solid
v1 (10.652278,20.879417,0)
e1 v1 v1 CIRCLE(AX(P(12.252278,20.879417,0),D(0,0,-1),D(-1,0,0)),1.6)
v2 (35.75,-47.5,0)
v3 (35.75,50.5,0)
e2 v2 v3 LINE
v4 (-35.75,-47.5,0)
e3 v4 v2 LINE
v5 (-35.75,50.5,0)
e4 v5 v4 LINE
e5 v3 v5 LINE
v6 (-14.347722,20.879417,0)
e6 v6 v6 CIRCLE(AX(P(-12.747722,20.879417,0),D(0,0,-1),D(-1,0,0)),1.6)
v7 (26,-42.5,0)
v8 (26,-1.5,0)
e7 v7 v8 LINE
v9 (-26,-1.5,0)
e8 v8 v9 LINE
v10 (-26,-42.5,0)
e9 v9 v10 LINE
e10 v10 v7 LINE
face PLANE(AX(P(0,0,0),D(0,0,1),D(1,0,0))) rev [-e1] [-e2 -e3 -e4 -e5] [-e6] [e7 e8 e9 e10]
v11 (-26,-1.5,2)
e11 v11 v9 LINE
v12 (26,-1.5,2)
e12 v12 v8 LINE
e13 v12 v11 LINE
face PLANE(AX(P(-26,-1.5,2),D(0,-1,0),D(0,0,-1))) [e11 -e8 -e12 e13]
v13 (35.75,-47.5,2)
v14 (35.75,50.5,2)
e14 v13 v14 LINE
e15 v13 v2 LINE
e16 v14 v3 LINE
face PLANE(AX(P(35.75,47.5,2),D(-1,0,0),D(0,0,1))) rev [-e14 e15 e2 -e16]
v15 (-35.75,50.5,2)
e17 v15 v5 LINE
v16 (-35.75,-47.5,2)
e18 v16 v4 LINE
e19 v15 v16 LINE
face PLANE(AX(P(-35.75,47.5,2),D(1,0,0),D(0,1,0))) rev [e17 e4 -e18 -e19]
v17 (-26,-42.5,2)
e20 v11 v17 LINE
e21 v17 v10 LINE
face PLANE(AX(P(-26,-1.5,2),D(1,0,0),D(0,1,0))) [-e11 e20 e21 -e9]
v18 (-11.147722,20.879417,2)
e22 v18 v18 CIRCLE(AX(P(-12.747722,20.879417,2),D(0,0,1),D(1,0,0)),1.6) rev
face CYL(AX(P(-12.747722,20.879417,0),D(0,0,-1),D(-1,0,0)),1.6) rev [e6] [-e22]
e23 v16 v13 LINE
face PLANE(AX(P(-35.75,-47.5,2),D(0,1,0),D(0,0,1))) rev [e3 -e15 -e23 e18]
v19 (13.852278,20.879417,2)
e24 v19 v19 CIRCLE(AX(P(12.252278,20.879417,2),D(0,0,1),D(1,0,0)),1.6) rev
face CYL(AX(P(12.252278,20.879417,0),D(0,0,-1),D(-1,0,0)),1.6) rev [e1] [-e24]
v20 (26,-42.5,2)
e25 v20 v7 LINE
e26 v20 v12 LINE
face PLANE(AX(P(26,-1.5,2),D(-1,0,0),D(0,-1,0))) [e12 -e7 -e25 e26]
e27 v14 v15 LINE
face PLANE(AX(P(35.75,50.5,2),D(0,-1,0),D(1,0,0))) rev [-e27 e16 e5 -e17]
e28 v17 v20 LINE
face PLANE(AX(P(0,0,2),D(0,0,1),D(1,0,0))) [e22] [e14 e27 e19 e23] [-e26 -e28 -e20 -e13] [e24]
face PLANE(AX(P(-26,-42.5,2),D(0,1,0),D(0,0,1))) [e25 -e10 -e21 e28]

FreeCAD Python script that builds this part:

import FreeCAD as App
import Part
import Sketcher

V = App.Vector
Q = App.Units.Quantity


def add_polygon(sketch, points):
    """Adds a closed chain of lines whose ends are joined by coincident constraints."""
    first, n = sketch.GeometryCount, len(points)
    for a, b in zip(points, points[1:] + points[:1]):
        sketch.addGeometry(Part.LineSegment(App.Vector(*a, 0), App.Vector(*b, 0)), False)
    for i in range(n):
        sketch.addConstraint(Sketcher.Constraint("Coincident", first + i, 2, first + (i + 1) % n, 1))

doc = App.newDocument("Part")
params = doc.addObject("Spreadsheet::Sheet", "Params")
for row, (alias, value) in enumerate([
    ("sketch1_width", "52 mm"),
    ("sketch1_height", "98 mm"),
    ("sketch1_height2", "41 mm"),
    ("sketch1_width2", "71.5 mm"),
    ("pad1_length", "2 mm"),
    ("sketch2_diameter", "3.2 mm"),
    ("hole_diameter", "3.2 mm"),
    ("hole_depth", "2 mm"),
], start=1):
    params.set(f"A{row}", alias)
    params.set(f"B{row}", "=" + value)
    params.setAlias(f"B{row}", alias)

body = doc.addObject("PartDesign::Body", "Body")

# Sketch on XY plane
sketch1 = body.newObject("Sketcher::SketchObject", "Sketch")
sketch1.AttachmentSupport = (doc.getObject("XY_Plane"), [""])
sketch1.MapMode = "FlatFace"
add_polygon(sketch1, [(36, 50), (-36, 50), (-36, -48), (36, -48)])  # lines 0-3
add_polygon(sketch1, [(26, -42), (-26, -42), (-26, -2), (26, -2)])  # lines 4-7
sketch1.addConstraint([
    Sketcher.Constraint("Horizontal", 0),
    Sketcher.Constraint("Vertical", 1),
    Sketcher.Constraint("Horizontal", 2),
    Sketcher.Constraint("Vertical", 3),
    Sketcher.Constraint("Horizontal", 4),
    Sketcher.Constraint("Vertical", 5),
    Sketcher.Constraint("Horizontal", 6),
    Sketcher.Constraint("Vertical", 7),
    Sketcher.Constraint("DistanceX", 4, 2, 4, 1, Q("52 mm")),
    Sketcher.Constraint("DistanceY", 1, 2, 1, 1, Q("98 mm")),
    Sketcher.Constraint("DistanceY", 5, 1, 5, 2, Q("41 mm")),
    Sketcher.Constraint("DistanceX", 0, 2, 0, 1, Q("71.5 mm")),
    Sketcher.Constraint("DistanceX", 4, 2, -1, 1, Q("26 mm")),
    Sketcher.Constraint("DistanceY", 1, 2, 4, 2, Q("5 mm")),
    Sketcher.Constraint("DistanceY", -1, 1, 0, 2, Q("50.5 mm")),
    Sketcher.Constraint("DistanceX", 0, 2, -1, 1, Q("35.75 mm")),
])
sketch1.setExpression("Constraints[16]", "Params.sketch1_width")
sketch1.setExpression("Constraints[17]", "Params.sketch1_height")
sketch1.setExpression("Constraints[18]", "Params.sketch1_height2")
sketch1.setExpression("Constraints[19]", "Params.sketch1_width2")
pad1 = body.newObject("PartDesign::Pad", "Pad")
pad1.Profile = sketch1
pad1.setExpression("Length", "Params.pad1_length")

# Sketch on XY plane
sketch2 = body.newObject("Sketcher::SketchObject", "Sketch001")
sketch2.AttachmentSupport = (doc.getObject("XY_Plane"), [""])
sketch2.MapMode = "FlatFace"
sketch2.addGeometry([
    Part.Circle(V(-12.7, 20.9, 0), V(0, 0, 1), 1.6),
    Part.Circle(V(12.3, 20.9, 0), V(0, 0, 1), 1.6),
], False)
sketch2.addConstraint([
    Sketcher.Constraint("Equal", 0, 1),
    Sketcher.Constraint("Horizontal", 0, 3, 1, 3),
    Sketcher.Constraint("Diameter", 0, Q("3.2 mm")),
    Sketcher.Constraint("DistanceX", 0, 3, 1, 3, Q("25 mm")),
    Sketcher.Constraint("DistanceX", 0, 3, -1, 1, Q("12.747722 mm")),
    Sketcher.Constraint("DistanceY", -1, 1, 0, 3, Q("20.879417 mm")),
])
sketch2.setExpression("Constraints[2]", "Params.sketch2_diameter")
doc.recompute()
hole = body.newObject("PartDesign::Hole", "Hole")
hole.Profile = sketch2
hole.ThreadType = "None"
hole.setExpression("Diameter", "Params.hole_diameter")
hole.DepthType = "Dimension"
hole.setExpression("Depth", "Params.hole_depth")
hole.DrillPoint = "Angled"
hole.DrillPointAngle = 118
hole.Reversed = True

doc.recompute()
